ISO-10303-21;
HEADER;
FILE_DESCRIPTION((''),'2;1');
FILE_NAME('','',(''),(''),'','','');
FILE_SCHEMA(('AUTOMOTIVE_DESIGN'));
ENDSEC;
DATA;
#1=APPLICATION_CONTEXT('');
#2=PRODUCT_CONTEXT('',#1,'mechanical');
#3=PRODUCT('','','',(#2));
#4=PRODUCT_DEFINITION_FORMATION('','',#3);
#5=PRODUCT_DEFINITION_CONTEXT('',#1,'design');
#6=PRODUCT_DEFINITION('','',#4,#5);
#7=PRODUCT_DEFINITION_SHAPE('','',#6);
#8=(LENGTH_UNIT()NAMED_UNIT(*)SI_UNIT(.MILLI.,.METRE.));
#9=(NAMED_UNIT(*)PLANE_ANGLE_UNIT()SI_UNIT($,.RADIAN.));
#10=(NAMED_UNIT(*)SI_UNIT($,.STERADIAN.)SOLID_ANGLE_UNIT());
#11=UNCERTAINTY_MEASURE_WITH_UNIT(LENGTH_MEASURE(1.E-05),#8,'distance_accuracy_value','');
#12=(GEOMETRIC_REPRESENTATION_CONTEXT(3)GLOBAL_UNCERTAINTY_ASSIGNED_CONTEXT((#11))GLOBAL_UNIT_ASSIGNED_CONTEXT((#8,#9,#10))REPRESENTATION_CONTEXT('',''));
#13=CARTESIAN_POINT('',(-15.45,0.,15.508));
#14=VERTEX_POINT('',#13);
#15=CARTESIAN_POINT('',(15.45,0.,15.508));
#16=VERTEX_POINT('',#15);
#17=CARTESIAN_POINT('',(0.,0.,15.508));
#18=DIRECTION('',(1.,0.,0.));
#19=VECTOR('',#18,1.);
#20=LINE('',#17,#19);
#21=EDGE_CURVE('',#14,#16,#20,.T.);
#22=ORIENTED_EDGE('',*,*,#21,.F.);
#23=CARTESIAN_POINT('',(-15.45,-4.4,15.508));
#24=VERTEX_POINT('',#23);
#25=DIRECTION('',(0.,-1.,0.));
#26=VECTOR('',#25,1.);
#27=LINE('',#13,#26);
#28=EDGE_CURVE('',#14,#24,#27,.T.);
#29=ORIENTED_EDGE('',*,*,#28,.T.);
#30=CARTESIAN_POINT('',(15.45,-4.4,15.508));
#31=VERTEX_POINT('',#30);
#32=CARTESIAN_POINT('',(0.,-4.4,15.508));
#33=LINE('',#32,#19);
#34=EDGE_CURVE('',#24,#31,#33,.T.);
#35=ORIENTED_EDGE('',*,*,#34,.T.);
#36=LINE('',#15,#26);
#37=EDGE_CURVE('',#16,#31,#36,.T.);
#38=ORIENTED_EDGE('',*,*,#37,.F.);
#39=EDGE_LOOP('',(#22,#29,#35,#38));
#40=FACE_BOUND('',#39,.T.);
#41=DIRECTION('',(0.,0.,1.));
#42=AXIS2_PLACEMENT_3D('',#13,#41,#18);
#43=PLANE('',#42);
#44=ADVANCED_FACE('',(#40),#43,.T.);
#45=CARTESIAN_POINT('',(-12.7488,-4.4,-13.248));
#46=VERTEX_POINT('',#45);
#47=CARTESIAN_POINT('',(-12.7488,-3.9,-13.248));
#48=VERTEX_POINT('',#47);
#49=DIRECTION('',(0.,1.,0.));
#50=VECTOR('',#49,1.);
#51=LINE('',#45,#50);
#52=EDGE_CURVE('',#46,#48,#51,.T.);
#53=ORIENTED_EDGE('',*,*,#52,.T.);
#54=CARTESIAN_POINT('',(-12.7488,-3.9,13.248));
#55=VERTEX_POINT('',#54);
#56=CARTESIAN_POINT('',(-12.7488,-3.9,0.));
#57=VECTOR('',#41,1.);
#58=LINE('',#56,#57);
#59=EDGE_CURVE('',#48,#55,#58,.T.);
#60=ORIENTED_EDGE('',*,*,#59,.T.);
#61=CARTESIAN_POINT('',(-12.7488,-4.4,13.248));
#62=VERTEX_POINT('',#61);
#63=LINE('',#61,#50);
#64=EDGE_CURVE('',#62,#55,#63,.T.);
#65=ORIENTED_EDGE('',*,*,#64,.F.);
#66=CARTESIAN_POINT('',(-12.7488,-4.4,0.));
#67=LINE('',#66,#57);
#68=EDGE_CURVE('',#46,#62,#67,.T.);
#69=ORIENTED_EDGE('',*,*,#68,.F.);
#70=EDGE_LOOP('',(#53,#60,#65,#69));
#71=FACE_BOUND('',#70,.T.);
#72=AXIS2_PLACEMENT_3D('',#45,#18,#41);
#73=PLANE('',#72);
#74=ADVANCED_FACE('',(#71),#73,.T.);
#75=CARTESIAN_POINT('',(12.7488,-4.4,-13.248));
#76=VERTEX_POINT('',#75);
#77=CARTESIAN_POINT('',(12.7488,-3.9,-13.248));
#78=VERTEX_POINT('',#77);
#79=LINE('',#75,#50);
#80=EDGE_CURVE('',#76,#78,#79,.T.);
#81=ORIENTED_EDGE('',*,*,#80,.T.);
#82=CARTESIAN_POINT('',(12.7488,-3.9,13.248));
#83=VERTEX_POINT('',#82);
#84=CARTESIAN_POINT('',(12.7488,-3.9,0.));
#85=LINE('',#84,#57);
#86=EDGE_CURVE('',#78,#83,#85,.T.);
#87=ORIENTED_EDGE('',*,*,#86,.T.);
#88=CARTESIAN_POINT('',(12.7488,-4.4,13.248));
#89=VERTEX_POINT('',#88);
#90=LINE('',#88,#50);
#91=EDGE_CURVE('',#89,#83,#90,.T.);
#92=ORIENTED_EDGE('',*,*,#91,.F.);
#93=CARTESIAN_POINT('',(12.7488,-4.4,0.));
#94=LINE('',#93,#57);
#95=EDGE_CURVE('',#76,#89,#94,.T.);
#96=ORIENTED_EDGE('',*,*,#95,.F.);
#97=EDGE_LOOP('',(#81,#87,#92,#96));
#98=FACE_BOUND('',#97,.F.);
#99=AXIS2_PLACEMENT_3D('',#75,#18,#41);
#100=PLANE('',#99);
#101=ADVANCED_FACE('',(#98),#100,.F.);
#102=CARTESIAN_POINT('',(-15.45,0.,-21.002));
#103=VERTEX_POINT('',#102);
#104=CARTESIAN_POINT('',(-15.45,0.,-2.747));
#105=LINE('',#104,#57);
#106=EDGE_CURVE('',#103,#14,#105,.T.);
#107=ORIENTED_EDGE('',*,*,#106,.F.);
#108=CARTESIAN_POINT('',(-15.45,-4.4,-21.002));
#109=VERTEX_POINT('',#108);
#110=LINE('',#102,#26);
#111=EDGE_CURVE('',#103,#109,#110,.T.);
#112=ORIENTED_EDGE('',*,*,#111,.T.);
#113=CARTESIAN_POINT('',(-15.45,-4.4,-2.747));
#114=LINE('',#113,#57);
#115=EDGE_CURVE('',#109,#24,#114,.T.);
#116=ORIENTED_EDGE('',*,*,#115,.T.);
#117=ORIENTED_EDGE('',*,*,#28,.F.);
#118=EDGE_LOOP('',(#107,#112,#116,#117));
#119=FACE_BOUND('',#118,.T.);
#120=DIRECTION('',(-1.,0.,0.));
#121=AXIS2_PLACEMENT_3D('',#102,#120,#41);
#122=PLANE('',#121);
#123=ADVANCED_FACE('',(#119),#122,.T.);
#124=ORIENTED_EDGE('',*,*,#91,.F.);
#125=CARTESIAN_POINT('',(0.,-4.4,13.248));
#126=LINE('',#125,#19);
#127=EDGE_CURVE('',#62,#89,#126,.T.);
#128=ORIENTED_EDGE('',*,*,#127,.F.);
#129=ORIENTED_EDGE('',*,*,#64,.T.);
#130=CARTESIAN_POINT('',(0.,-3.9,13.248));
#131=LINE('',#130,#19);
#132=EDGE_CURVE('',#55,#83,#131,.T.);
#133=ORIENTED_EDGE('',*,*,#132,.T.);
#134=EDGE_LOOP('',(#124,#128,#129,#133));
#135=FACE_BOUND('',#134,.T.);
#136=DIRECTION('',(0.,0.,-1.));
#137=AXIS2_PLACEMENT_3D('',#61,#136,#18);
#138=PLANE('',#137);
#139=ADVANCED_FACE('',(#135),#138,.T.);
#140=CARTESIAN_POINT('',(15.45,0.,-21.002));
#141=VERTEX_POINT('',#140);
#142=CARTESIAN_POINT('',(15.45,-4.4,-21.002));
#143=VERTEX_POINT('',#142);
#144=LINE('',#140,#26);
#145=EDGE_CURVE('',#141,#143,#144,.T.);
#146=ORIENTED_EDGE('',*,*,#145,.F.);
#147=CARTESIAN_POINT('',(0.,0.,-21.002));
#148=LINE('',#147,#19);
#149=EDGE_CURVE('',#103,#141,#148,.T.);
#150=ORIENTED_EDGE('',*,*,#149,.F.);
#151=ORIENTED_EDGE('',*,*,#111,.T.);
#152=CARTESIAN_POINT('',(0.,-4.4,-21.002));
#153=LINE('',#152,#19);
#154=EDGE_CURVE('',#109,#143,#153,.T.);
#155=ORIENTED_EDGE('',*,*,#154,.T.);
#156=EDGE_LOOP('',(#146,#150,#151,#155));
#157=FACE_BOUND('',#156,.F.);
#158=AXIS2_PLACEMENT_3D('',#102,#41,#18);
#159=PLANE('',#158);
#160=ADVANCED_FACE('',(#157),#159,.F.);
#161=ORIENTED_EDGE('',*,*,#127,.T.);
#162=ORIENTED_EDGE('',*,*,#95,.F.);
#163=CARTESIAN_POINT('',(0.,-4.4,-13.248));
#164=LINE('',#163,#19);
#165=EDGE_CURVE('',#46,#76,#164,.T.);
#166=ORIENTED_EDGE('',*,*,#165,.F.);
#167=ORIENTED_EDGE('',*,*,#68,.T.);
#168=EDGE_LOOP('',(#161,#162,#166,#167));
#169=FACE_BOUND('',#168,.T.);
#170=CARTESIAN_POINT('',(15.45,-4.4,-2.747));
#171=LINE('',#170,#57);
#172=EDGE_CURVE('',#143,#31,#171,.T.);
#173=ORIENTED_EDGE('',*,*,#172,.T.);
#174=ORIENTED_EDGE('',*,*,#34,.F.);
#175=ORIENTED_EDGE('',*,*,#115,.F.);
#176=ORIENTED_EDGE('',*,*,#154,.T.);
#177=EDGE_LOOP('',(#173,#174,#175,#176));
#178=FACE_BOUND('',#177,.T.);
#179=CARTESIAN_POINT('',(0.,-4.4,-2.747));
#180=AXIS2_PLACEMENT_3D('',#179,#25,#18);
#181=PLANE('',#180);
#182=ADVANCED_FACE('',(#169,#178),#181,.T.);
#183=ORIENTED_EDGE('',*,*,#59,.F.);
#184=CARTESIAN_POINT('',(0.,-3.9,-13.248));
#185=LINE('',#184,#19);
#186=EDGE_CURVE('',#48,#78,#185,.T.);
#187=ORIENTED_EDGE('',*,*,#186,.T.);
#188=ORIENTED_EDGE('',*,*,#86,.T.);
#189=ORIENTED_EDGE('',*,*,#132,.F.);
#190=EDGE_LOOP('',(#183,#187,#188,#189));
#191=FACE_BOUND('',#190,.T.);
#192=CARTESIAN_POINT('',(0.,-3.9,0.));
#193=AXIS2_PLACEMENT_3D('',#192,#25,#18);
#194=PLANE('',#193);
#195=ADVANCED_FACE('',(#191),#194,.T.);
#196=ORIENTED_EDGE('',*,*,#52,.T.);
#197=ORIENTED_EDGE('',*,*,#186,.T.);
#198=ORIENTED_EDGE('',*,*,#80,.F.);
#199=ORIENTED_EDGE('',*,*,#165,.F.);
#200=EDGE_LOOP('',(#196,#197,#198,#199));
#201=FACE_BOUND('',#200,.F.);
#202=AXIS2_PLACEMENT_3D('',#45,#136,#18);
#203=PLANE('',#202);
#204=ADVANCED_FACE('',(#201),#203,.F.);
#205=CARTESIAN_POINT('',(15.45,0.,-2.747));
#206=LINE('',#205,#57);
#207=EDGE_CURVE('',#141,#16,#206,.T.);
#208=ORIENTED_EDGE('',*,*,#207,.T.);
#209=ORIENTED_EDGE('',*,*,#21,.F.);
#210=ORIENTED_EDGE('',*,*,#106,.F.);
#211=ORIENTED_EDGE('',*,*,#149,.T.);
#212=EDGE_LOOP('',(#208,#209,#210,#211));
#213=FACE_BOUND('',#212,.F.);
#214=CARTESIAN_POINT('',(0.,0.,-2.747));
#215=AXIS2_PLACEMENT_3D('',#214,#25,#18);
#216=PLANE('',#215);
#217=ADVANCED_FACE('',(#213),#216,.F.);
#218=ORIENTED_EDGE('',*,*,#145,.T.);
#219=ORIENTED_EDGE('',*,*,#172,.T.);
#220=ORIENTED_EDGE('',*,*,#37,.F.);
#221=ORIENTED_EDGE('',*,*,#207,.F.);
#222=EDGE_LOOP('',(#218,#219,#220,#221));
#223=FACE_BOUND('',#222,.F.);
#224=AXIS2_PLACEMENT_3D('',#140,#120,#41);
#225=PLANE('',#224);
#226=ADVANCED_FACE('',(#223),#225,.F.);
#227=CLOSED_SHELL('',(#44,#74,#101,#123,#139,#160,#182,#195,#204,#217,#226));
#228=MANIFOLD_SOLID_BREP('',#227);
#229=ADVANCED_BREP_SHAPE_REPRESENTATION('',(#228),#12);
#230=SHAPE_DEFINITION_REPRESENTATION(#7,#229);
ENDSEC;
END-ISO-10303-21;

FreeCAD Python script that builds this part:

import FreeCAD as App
import Part
import Sketcher

V = App.Vector


def add_polygon(sketch, points):
    """Adds a closed chain of lines whose ends are joined by coincident constraints."""
    first, n = sketch.GeometryCount, len(points)
    for a, b in zip(points, points[1:] + points[:1]):
        sketch.addGeometry(Part.LineSegment(App.Vector(*a, 0), App.Vector(*b, 0)), False)
    for i in range(n):
        sketch.addConstraint(Sketcher.Constraint("Coincident", first + i, 2, first + (i + 1) % n, 1))

doc = App.newDocument("Part")
body = doc.addObject("PartDesign::Body", "Body")

# Sketch on XZ plane
sketch1 = body.newObject("Sketcher::SketchObject", "Sketch")
sketch1.AttachmentSupport = (doc.getObject("XZ_Plane"), [""])
sketch1.MapMode = "FlatFace"
add_polygon(sketch1, [(-15.45, 15.508), (-15.45, -21.002), (15.45, -21.002), (15.45, 15.508)])  # lines 0-3
sketch1.addConstraint([
    Sketcher.Constraint("Vertical", 0),
    Sketcher.Constraint("Horizontal", 1),
    Sketcher.Constraint("Vertical", 2),
    Sketcher.Constraint("Horizontal", 3),
    Sketcher.Constraint("DistanceX", 1, 1, 1, 2, 30.9),
    Sketcher.Constraint("DistanceY", 0, 2, 0, 1, 36.51),
    Sketcher.Constraint("DistanceX", 0, 2, -1, 1, 15.45),
    Sketcher.Constraint("DistanceY", 0, 2, -1, 1, 21.002),
])
pad1 = body.newObject("PartDesign::Pad", "Pad")
pad1.Profile = sketch1
pad1.Length = 4.4

# Sketch on XZ plane
sketch2 = body.newObject("Sketcher::SketchObject", "Sketch001")
sketch2.AttachmentSupport = (doc.getObject("XZ_Plane"), [""])
sketch2.MapMode = "FlatFace"
sketch2.AttachmentOffset = App.Placement(V(0, 0, 4.4), App.Rotation())
add_polygon(sketch2, [(-12.7488, 13.248), (-12.7488, -13.248), (12.7488, -13.248), (12.7488, 13.248)])  # lines 0-3
sketch2.addConstraint([
    Sketcher.Constraint("Vertical", 0),
    Sketcher.Constraint("Horizontal", 1),
    Sketcher.Constraint("Vertical", 2),
    Sketcher.Constraint("Horizontal", 3),
    Sketcher.Constraint("Symmetric", 0, 2, 2, 2, -1, 1),
    Sketcher.Constraint("DistanceY", 0, 2, 0, 1, 26.496),
    Sketcher.Constraint("DistanceX", 1, 1, 1, 2, 25.4976),
])
pocket1 = body.newObject("PartDesign::Pocket", "Pocket")
pocket1.Profile = sketch2
pocket1.Length = 0.5

doc.recompute()
